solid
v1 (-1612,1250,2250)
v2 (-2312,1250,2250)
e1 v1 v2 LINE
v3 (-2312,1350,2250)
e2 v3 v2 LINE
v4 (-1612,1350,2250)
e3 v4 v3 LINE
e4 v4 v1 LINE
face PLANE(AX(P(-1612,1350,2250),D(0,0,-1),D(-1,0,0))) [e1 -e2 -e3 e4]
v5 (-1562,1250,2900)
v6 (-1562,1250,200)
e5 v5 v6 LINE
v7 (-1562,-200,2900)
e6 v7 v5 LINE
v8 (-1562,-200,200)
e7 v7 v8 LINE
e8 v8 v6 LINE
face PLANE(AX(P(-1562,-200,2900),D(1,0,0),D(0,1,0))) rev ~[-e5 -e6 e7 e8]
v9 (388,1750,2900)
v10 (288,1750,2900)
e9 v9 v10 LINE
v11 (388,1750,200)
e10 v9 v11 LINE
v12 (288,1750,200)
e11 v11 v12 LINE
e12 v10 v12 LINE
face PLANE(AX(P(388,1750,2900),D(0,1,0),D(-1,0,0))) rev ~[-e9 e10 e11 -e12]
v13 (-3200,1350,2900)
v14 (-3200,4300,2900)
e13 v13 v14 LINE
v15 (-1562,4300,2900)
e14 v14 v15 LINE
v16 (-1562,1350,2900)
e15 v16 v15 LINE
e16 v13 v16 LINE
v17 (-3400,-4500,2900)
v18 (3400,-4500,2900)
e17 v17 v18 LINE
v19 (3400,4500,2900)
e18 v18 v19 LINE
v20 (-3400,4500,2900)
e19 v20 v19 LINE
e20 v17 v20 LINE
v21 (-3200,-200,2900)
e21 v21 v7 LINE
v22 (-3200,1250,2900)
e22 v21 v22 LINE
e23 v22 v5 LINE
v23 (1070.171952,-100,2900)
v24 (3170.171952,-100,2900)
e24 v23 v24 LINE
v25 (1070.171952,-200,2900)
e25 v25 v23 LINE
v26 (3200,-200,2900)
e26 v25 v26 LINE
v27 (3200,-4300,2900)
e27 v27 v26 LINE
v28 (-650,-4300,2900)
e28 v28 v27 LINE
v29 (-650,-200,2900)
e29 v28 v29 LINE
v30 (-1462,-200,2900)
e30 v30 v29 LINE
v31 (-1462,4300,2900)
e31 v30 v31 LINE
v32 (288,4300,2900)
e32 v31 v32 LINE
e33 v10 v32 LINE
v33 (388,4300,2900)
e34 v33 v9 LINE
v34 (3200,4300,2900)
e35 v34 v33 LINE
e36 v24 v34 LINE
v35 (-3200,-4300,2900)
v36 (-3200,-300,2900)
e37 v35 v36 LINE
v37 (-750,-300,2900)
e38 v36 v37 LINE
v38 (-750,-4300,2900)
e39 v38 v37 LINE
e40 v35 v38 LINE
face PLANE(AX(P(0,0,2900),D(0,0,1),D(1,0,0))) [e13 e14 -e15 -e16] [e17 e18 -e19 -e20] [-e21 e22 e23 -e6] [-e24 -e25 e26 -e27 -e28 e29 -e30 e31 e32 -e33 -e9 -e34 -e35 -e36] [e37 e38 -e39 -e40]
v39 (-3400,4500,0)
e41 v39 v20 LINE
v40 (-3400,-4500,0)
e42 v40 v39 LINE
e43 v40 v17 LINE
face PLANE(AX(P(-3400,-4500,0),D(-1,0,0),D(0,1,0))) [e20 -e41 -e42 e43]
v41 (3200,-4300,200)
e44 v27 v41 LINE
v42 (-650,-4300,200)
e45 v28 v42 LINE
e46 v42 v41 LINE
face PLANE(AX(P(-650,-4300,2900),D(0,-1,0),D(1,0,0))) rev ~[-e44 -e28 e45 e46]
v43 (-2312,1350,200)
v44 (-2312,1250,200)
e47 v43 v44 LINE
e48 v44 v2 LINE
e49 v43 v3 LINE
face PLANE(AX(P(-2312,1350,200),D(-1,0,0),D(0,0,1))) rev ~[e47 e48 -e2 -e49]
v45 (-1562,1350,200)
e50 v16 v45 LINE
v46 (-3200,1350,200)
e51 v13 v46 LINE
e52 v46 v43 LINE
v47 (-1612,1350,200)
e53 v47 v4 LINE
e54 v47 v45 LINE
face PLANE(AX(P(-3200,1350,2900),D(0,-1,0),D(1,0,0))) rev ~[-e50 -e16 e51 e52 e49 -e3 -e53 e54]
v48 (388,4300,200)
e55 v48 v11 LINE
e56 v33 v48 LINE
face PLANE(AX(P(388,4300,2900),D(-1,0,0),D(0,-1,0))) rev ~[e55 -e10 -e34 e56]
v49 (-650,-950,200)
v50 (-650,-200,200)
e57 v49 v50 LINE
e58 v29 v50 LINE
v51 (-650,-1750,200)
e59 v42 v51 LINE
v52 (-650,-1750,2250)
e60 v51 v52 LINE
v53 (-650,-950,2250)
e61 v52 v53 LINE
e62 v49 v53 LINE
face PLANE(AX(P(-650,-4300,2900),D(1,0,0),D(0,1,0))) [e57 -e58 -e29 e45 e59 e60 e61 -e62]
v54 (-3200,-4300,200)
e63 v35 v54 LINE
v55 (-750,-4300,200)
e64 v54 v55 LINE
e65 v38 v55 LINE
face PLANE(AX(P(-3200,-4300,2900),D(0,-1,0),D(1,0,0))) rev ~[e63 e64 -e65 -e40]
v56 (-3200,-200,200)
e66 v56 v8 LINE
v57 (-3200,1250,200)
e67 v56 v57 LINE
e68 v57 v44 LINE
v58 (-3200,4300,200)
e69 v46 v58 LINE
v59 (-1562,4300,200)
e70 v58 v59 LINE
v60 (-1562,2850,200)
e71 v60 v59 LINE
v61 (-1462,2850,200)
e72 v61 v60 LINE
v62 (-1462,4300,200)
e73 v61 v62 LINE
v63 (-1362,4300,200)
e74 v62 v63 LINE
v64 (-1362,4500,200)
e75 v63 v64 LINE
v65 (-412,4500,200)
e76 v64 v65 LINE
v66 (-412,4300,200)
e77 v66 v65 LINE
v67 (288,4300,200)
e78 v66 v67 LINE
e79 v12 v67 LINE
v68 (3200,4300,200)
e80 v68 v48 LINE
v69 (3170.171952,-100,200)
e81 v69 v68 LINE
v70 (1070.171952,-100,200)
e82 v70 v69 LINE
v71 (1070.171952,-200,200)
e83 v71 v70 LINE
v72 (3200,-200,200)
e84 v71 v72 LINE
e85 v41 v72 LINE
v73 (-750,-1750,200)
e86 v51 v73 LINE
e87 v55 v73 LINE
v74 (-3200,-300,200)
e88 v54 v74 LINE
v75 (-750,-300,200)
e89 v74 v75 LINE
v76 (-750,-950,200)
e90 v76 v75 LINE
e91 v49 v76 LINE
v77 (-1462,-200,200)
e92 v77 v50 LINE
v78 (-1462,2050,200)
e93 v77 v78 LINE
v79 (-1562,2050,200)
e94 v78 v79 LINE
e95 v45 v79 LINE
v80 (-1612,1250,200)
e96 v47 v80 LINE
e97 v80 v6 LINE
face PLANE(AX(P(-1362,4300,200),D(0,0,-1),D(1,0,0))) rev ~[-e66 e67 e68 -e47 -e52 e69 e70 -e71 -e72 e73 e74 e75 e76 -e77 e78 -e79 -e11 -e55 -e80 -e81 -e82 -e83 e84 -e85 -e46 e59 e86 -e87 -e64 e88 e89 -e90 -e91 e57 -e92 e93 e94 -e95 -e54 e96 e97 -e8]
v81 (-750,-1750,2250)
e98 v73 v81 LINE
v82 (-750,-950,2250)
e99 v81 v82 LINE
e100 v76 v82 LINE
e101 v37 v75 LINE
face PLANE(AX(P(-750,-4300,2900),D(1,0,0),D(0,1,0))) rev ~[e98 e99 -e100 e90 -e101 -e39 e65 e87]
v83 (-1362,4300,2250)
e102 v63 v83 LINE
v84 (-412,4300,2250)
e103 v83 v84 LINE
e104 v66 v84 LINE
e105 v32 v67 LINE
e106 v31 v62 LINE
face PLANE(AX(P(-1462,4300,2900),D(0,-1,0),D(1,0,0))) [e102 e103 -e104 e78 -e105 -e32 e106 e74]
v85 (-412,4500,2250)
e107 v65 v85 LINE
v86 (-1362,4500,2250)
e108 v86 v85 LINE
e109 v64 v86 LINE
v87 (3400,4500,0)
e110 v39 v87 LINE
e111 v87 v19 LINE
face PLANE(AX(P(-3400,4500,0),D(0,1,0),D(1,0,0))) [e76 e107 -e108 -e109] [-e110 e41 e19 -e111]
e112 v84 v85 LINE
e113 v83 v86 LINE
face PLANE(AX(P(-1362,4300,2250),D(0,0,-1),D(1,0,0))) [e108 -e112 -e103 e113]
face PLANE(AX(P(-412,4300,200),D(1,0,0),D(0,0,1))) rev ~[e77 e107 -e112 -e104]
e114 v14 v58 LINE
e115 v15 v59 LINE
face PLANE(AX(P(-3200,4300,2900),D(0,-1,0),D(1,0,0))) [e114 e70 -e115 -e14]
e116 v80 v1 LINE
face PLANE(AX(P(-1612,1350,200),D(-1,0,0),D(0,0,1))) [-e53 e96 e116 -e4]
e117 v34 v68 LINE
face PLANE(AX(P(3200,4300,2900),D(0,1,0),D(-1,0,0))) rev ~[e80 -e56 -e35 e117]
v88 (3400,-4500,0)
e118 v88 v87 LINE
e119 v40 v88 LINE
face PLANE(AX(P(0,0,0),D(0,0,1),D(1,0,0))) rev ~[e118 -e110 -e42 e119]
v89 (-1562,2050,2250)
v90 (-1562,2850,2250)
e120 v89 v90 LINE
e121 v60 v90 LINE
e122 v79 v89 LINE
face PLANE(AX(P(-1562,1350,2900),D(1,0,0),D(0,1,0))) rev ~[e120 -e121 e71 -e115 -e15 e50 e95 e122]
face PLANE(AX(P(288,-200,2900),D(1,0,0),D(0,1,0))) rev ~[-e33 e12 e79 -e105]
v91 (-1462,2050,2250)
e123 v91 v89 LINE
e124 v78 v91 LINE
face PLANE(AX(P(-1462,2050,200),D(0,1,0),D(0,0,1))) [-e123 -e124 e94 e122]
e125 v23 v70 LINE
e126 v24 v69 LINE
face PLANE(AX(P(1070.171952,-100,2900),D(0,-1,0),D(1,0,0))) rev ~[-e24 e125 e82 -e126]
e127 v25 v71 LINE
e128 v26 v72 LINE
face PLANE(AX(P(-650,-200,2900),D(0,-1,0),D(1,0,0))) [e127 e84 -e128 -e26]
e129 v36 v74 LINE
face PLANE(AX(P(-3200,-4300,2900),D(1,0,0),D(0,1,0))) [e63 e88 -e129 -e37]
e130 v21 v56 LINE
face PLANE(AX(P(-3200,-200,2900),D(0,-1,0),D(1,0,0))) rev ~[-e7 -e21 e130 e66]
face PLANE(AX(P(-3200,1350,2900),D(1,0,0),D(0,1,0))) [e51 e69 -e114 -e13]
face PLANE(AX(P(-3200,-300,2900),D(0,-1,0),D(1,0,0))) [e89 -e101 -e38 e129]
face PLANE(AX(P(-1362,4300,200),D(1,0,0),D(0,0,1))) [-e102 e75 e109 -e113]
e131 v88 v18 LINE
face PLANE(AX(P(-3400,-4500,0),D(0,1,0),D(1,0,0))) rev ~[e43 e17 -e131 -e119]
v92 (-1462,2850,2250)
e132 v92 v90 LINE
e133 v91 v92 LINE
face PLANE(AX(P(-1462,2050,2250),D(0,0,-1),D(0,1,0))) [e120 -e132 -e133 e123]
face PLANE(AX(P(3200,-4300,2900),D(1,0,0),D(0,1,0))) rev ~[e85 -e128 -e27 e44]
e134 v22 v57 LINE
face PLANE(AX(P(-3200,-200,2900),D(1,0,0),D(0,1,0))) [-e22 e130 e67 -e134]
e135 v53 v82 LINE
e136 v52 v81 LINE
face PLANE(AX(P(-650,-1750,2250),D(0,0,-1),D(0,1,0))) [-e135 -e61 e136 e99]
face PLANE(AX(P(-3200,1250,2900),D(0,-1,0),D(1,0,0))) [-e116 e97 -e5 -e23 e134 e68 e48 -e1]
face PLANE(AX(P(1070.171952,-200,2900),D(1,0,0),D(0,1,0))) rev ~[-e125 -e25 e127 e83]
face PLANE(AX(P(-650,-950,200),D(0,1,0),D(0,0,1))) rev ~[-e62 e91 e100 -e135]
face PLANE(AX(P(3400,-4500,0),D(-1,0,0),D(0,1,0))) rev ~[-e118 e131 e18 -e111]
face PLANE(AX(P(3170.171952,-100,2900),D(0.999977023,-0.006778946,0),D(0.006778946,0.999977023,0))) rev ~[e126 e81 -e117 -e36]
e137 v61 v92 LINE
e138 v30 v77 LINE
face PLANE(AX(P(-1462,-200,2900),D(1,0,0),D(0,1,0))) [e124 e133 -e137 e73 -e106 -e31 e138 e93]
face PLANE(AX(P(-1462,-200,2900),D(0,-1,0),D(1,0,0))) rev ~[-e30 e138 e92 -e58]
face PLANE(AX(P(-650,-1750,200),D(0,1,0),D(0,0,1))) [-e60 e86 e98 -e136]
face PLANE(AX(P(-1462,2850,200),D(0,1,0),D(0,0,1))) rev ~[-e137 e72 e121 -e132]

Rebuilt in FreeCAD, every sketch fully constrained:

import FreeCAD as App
import Part
import Sketcher

V = App.Vector


def add_polygon(sketch, points):
    """Adds a closed chain of lines whose ends are joined by coincident constraints."""
    first, n = sketch.GeometryCount, len(points)
    for a, b in zip(points, points[1:] + points[:1]):
        sketch.addGeometry(Part.LineSegment(App.Vector(*a, 0), App.Vector(*b, 0)), False)
    for i in range(n):
        sketch.addConstraint(Sketcher.Constraint("Coincident", first + i, 2, first + (i + 1) % n, 1))

doc = App.newDocument("Part")
body = doc.addObject("PartDesign::Body", "Body")

sketch1 = doc.addObject("Sketcher::SketchObject", "Sketch")
body.addObject(sketch1)
sketch1.AttachmentSupport = (doc.XY_Plane, [""])
sketch1.MapMode = "FlatFace"
add_polygon(sketch1, [(-3400, 4500), (-3400, -4500), (3400, -4500), (3400, 4500)])
sketch1.addConstraint([
    Sketcher.Constraint("Vertical", 0),
    Sketcher.Constraint("Horizontal", 1),
    Sketcher.Constraint("Vertical", 2),
    Sketcher.Constraint("Horizontal", 3),
    Sketcher.Constraint("Symmetric", 0, 2, 2, 2, -1, 1),
    Sketcher.Constraint("DistanceX", 1, 1, 1, 2, 6800.0),
    Sketcher.Constraint("DistanceY", 0, 2, 0, 1, 9000.0),
])
pad1 = doc.addObject("PartDesign::Pad", "Pad")
body.addObject(pad1)
pad1.Profile = sketch1
pad1.Length = 2900

sketch2 = doc.addObject("Sketcher::SketchObject", "Sketch001")
body.addObject(sketch2)
sketch2.AttachmentSupport = (doc.XY_Plane, [""])
sketch2.MapMode = "FlatFace"
sketch2.AttachmentOffset = App.Placement(V(0, 0, 2900), App.Rotation())
add_polygon(sketch2, [(-650, -200), (-650, -4300), (3200, -4300), (3200, -200)])
sketch2.addConstraint([
    Sketcher.Constraint("Vertical", 0),
    Sketcher.Constraint("Horizontal", 1),
    Sketcher.Constraint("Vertical", 2),
    Sketcher.Constraint("Horizontal", 3),
    Sketcher.Constraint("DistanceX", 1, 1, 1, 2, 3850.0),
    Sketcher.Constraint("DistanceY", 0, 2, 0, 1, 4100.0),
    Sketcher.Constraint("DistanceX", 0, 2, -1, 1, 650.0),
    Sketcher.Constraint("DistanceY", 0, 2, -1, 1, 4300.0),
])
pocket1 = doc.addObject("PartDesign::Pocket", "Pocket")
body.addObject(pocket1)
pocket1.Profile = sketch2
pocket1.Length = 2700

sketch3 = doc.addObject("Sketcher::SketchObject", "Sketch002")
body.addObject(sketch3)
sketch3.AttachmentSupport = (doc.XY_Plane, [""])
sketch3.MapMode = "FlatFace"
sketch3.AttachmentOffset = App.Placement(V(0, 0, 2900), App.Rotation())
add_polygon(sketch3, [(-3200, -300), (-3200, -4300), (-750, -4300), (-750, -300)])
sketch3.addConstraint([
    Sketcher.Constraint("Vertical", 0),
    Sketcher.Constraint("Horizontal", 1),
    Sketcher.Constraint("Vertical", 2),
    Sketcher.Constraint("Horizontal", 3),
    Sketcher.Constraint("DistanceX", 1, 1, 1, 2, 2450.0),
    Sketcher.Constraint("DistanceY", 0, 2, 0, 1, 4000.0),
    Sketcher.Constraint("DistanceX", 0, 2, -1, 1, 3200.0),
    Sketcher.Constraint("DistanceY", 0, 2, -1, 1, 4300.0),
])
pocket2 = doc.addObject("PartDesign::Pocket", "Pocket001")
body.addObject(pocket2)
pocket2.Profile = sketch3
pocket2.Length = 2700

sketch4 = doc.addObject("Sketcher::SketchObject", "Sketch003")
body.addObject(sketch4)
sketch4.AttachmentSupport = (doc.XY_Plane, [""])
sketch4.MapMode = "FlatFace"
sketch4.AttachmentOffset = App.Placement(V(0, 0, 2900), App.Rotation())
add_polygon(sketch4, [(-1462, 4300), (-1462, -200), (288, -200), (288, 4300)])
sketch4.addConstraint([
    Sketcher.Constraint("Vertical", 0),
    Sketcher.Constraint("Horizontal", 1),
    Sketcher.Constraint("Vertical", 2),
    Sketcher.Constraint("Horizontal", 3),
    Sketcher.Constraint("DistanceX", 1, 1, 1, 2, 1750.0),
    Sketcher.Constraint("DistanceY", 0, 2, 0, 1, 4500.0),
    Sketcher.Constraint("DistanceX", 0, 2, -1, 1, 1462.0),
    Sketcher.Constraint("DistanceY", 0, 2, -1, 1, 200.0),
])
pocket3 = doc.addObject("PartDesign::Pocket", "Pocket002")
body.addObject(pocket3)
pocket3.Profile = sketch4
pocket3.Length = 2700

sketch5 = doc.addObject("Sketcher::SketchObject", "Sketch004")
body.addObject(sketch5)
sketch5.AttachmentSupport = (doc.XY_Plane, [""])
sketch5.MapMode = "FlatFace"
sketch5.AttachmentOffset = App.Placement(V(0, 0, 2900), App.Rotation())
add_polygon(sketch5, [(3170, -100), (3200, 4300), (388, 4300), (388, 1750), (288, 1750), (288, -200), (1070, -200), (1070, -100)])
sketch5.addConstraint([
    Sketcher.Constraint("Horizontal", 1),
    Sketcher.Constraint("Vertical", 2),
    Sketcher.Constraint("Horizontal", 3),
    Sketcher.Constraint("Vertical", 4),
    Sketcher.Constraint("Horizontal", 5),
    Sketcher.Constraint("Vertical", 6),
    Sketcher.Constraint("Horizontal", 7),
    Sketcher.Constraint("Equal", 3, 6),
    Sketcher.Constraint("DistanceX", 1, 2, 1, 1, 2812.0),
    Sketcher.Constraint("DistanceX", 3, 2, 3, 1, 100.0),
    Sketcher.Constraint("DistanceX", 7, 1, 7, 2, 2100.0),
    Sketcher.Constraint("DistanceY", 2, 2, 2, 1, 2550.0),
    Sketcher.Constraint("DistanceY", 4, 2, 4, 1, 1950.0),
    Sketcher.Constraint("DistanceX", -1, 1, 0, 2, 3200.0),
    Sketcher.Constraint("DistanceY", -1, 1, 0, 2, 4300.0),
    Sketcher.Constraint("DistanceX", 5, 1, 5, 2, 782.171952),
])
pocket4 = doc.addObject("PartDesign::Pocket", "Pocket003")
body.addObject(pocket4)
pocket4.Profile = sketch5
pocket4.Length = 2700

sketch6 = doc.addObject("Sketcher::SketchObject", "Sketch005")
body.addObject(sketch6)
sketch6.AttachmentSupport = (doc.XY_Plane, [""])
sketch6.MapMode = "FlatFace"
sketch6.AttachmentOffset = App.Placement(V(0, 0, 2900), App.Rotation())
add_polygon(sketch6, [(-3200, 4300), (-3200, 1350), (-1562, 1350), (-1562, 4300)])
add_polygon(sketch6, [(-3200, 1250), (-3200, -200), (-1562, -200), (-1562, 1250)])
sketch6.addConstraint([
    Sketcher.Constraint("Vertical", 0),
    Sketcher.Constraint("Horizontal", 1),
    Sketcher.Constraint("Vertical", 2),
    Sketcher.Constraint("Horizontal", 3),
    Sketcher.Constraint("Vertical", 4),
    Sketcher.Constraint("Horizontal", 5),
    Sketcher.Constraint("Vertical", 6),
    Sketcher.Constraint("Horizontal", 7),
    Sketcher.Constraint("Vertical", 3, 2, 4, 2),
    Sketcher.Constraint("Vertical", 2, 2, 5, 2),
    Sketcher.Constraint("DistanceX", 1, 1, 1, 2, 1638.0),
    Sketcher.Constraint("DistanceY", 0, 2, 0, 1, 2950.0),
    Sketcher.Constraint("DistanceY", 4, 2, 4, 1, 1450.0),
    Sketcher.Constraint("DistanceX", 0, 2, -1, 1, 3200.0),
    Sketcher.Constraint("DistanceY", -1, 1, 0, 2, 1350.0),
    Sketcher.Constraint("DistanceY", 4, 2, -1, 1, 200.0),
])
pocket5 = doc.addObject("PartDesign::Pocket", "Pocket004")
body.addObject(pocket5)
pocket5.Profile = sketch6
pocket5.Length = 2700

sketch7 = doc.addObject("Sketcher::SketchObject", "Sketch006")
body.addObject(sketch7)
sketch7.AttachmentSupport = (doc.YZ_Plane, [""])
sketch7.MapMode = "FlatFace"
sketch7.AttachmentOffset = App.Placement(V(0, 0, -650), App.Rotation())
add_polygon(sketch7, [(-1750, 2250), (-1750, 200), (-950, 200), (-950, 2250)])
sketch7.addConstraint([
    Sketcher.Constraint("Vertical", 0),
    Sketcher.Constraint("Horizontal", 1),
    Sketcher.Constraint("Vertical", 2),
    Sketcher.Constraint("Horizontal", 3),
    Sketcher.Constraint("DistanceX", 1, 1, 1, 2, 800.0),
    Sketcher.Constraint("DistanceY", 0, 2, 0, 1, 2050.0),
    Sketcher.Constraint("DistanceX", 0, 2, -1, 1, 1750.0),
    Sketcher.Constraint("DistanceY", -1, 1, 0, 2, 200.0),
])
pocket6 = doc.addObject("PartDesign::Pocket", "Pocket005")
body.addObject(pocket6)
pocket6.Profile = sketch7
pocket6.Length = 100

sketch8 = doc.addObject("Sketcher::SketchObject", "Sketch007")
body.addObject(sketch8)
sketch8.AttachmentSupport = (doc.YZ_Plane, [""])
sketch8.MapMode = "FlatFace"
sketch8.AttachmentOffset = App.Placement(V(0, 0, -1462), App.Rotation())
add_polygon(sketch8, [(2050, 2250), (2050, 200), (2850, 200), (2850, 2250)])
sketch8.addConstraint([
    Sketcher.Constraint("Vertical", 0),
    Sketcher.Constraint("Horizontal", 1),
    Sketcher.Constraint("Vertical", 2),
    Sketcher.Constraint("Horizontal", 3),
    Sketcher.Constraint("DistanceX", 1, 1, 1, 2, 800.0),
    Sketcher.Constraint("DistanceY", 0, 2, 0, 1, 2050.0),
    Sketcher.Constraint("DistanceX", -1, 1, 0, 2, 2050.0),
    Sketcher.Constraint("DistanceY", -1, 1, 0, 2, 200.0),
])
pocket7 = doc.addObject("PartDesign::Pocket", "Pocket006")
body.addObject(pocket7)
pocket7.Profile = sketch8
pocket7.Length = 100

sketch9 = doc.addObject("Sketcher::SketchObject", "Sketch008")
body.addObject(sketch9)
sketch9.AttachmentSupport = (doc.XZ_Plane, [""])
sketch9.MapMode = "FlatFace"
sketch9.AttachmentOffset = App.Placement(V(0, 0, -4300), App.Rotation())
add_polygon(sketch9, [(-1362, 2250), (-1362, 200), (-412, 200), (-412, 2250)])
sketch9.addConstraint([
    Sketcher.Constraint("Vertical", 0),
    Sketcher.Constraint("Horizontal", 1),
    Sketcher.Constraint("Vertical", 2),
    Sketcher.Constraint("Horizontal", 3),
    Sketcher.Constraint("DistanceX", 1, 1, 1, 2, 950.0),
    Sketcher.Constraint("DistanceY", 0, 2, 0, 1, 2050.0),
    Sketcher.Constraint("DistanceX", 0, 2, -1, 1, 1362.0),
    Sketcher.Constraint("DistanceY", -1, 1, 0, 2, 200.0),
])
pocket8 = doc.addObject("PartDesign::Pocket", "Pocket007")
body.addObject(pocket8)
pocket8.Profile = sketch9
pocket8.Length = 200

sketch10 = doc.addObject("Sketcher::SketchObject", "Sketch009")
body.addObject(sketch10)
sketch10.AttachmentSupport = (doc.XZ_Plane, [""])
sketch10.MapMode = "FlatFace"
sketch10.AttachmentOffset = App.Placement(V(0, 0, -1350), App.Rotation())
add_polygon(sketch10, [(-1612, 2250), (-1612, 200), (-2312, 200), (-2312, 2250)])
sketch10.addConstraint([
    Sketcher.Constraint("Vertical", 0),
    Sketcher.Constraint("Horizontal", 1),
    Sketcher.Constraint("Vertical", 2),
    Sketcher.Constraint("Horizontal", 3),
    Sketcher.Constraint("DistanceX", 1, 2, 1, 1, 700.0),
    Sketcher.Constraint("DistanceY", 0, 2, 0, 1, 2050.0),
    Sketcher.Constraint("DistanceX", 0, 2, -1, 1, 1612.0),
    Sketcher.Constraint("DistanceY", -1, 1, 0, 2, 200.0),
])
pocket9 = doc.addObject("PartDesign::Pocket", "Pocket008")
body.addObject(pocket9)
pocket9.Profile = sketch10
pocket9.Length = 100
pocket9.Reversed = True

doc.recompute()
